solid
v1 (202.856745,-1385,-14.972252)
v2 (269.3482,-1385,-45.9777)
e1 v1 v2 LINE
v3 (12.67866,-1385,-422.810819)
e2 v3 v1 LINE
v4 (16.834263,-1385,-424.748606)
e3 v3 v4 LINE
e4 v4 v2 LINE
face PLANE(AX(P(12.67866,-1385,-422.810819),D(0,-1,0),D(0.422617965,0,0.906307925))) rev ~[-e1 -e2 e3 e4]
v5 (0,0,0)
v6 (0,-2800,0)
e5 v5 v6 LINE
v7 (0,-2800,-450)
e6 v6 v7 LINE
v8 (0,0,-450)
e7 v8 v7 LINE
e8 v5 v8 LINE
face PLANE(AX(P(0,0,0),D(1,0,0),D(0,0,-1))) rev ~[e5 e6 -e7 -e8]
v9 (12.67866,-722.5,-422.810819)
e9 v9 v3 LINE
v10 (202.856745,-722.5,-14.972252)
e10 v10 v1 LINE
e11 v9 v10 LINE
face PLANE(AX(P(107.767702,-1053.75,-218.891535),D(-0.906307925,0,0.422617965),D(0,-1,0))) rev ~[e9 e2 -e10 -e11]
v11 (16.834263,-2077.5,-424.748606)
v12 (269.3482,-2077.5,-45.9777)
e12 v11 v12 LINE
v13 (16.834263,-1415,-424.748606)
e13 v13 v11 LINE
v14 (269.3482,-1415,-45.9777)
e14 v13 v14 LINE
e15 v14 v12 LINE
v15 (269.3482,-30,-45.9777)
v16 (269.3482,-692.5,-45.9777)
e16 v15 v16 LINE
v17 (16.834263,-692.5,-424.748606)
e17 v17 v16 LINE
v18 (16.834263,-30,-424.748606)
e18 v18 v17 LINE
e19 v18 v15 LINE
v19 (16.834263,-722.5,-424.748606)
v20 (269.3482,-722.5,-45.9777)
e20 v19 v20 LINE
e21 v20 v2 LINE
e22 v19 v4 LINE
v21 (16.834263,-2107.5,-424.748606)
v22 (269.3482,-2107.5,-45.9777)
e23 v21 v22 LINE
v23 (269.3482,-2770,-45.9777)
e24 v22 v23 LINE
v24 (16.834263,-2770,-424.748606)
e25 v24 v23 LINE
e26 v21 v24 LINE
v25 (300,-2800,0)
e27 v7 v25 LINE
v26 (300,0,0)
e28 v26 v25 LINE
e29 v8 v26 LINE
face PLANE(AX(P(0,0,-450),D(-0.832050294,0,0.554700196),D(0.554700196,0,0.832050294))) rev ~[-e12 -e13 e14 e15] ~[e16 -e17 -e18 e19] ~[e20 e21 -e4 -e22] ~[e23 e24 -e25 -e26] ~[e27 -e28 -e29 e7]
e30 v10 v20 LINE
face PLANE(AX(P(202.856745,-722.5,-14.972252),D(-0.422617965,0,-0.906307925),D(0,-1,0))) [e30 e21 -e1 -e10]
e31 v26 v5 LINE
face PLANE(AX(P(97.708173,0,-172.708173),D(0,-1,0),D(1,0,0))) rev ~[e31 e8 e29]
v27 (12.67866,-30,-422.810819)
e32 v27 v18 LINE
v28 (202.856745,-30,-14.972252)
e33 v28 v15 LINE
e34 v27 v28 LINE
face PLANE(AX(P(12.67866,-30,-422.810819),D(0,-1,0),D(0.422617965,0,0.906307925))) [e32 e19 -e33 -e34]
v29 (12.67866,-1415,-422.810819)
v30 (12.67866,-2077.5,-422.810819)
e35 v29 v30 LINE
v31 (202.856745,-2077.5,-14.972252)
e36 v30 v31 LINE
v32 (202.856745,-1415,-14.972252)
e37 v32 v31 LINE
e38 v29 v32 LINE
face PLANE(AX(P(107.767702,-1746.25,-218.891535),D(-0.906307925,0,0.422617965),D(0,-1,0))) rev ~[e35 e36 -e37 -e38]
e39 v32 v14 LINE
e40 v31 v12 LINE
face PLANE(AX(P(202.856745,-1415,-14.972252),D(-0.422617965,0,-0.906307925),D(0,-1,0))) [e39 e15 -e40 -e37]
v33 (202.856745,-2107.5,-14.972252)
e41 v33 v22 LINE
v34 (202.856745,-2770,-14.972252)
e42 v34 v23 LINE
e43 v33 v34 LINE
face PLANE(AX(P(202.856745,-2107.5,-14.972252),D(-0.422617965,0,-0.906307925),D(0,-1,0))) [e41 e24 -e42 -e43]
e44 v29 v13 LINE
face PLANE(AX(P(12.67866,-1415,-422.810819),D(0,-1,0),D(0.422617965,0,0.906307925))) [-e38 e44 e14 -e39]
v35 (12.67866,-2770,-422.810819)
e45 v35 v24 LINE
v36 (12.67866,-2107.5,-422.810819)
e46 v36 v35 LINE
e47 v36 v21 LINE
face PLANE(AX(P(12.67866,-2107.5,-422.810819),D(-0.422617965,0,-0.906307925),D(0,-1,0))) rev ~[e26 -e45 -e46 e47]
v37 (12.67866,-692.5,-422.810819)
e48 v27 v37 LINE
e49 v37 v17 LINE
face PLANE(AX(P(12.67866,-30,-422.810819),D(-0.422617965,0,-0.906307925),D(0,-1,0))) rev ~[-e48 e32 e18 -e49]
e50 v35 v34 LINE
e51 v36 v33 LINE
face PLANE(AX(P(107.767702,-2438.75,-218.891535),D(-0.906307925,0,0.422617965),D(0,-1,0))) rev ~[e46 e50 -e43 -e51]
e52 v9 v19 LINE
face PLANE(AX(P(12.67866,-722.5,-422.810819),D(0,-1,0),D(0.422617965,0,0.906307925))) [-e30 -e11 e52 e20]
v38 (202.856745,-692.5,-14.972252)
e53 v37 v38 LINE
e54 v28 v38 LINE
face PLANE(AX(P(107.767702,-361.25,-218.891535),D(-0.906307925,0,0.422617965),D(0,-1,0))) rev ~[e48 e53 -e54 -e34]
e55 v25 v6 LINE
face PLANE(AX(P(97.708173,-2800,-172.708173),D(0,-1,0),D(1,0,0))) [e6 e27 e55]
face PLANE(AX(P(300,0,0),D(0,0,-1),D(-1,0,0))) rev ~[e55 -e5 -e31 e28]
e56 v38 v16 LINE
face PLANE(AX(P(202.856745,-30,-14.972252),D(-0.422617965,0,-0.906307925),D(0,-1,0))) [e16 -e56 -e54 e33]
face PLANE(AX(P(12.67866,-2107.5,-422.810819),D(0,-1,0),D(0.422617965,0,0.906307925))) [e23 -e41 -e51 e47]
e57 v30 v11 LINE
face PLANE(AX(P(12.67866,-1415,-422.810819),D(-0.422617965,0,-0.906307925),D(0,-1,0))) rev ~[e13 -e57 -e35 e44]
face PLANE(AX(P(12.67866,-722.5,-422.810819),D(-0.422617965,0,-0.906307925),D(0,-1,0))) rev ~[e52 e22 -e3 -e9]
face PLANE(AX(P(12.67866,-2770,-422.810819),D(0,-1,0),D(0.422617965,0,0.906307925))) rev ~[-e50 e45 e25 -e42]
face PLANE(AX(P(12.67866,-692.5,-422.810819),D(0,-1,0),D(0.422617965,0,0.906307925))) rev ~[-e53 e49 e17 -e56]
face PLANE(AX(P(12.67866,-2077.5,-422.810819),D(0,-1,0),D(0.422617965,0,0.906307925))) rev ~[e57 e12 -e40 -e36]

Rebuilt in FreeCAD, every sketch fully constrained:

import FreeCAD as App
import Part
import Sketcher
from FreeCAD import Vector

doc = App.newDocument("Part")
body = doc.addObject("PartDesign::Body", "Body")

sketch1 = body.newObject("Sketcher::SketchObject", "Sketch")
sketch1.AttachmentSupport = (doc.getObject("XZ_Plane"), [""])
sketch1.MapMode = "FlatFace"
sketch1.addGeometry([
    Part.LineSegment(Vector(300, 0, 0), Vector(0, 0, 0)),
    Part.LineSegment(Vector(0, 0, 0), Vector(0, -450, 0)),
    Part.LineSegment(Vector(0, -450, 0), Vector(300, 0, 0)),
], False)
sketch1.addConstraint([
    Sketcher.Constraint("Coincident", 0, 2, 1, 1),
    Sketcher.Constraint("Coincident", 1, 2, 2, 1),
    Sketcher.Constraint("Coincident", 2, 2, 0, 1),
    Sketcher.Constraint("Horizontal", 0),
    Sketcher.Constraint("Vertical", 1),
    Sketcher.Constraint("Coincident", 0, 2, -1, 1),
    Sketcher.Constraint("DistanceX", 0, 2, 0, 1, 300.0),
    Sketcher.Constraint("DistanceY", 1, 2, 1, 1, 450.0),
])
pad1 = body.newObject("PartDesign::Pad", "Pad")
pad1.Profile = sketch1
pad1.Length = 2800

sketch2 = body.newObject("Sketcher::SketchObject", "Sketch001")
sketch2.Placement = App.Placement(Vector(172.36, 0, -80.372788), App.Rotation(Vector(0, -1, 0), Vector(0.422617965, 0, 0.906307925), Vector(-0.906307925, 0, 0.422617965), "ZXY"))
sketch2.addGeometry([
    Part.LineSegment(Vector(2107.5, 72.161496, 0), Vector(2107.5, -377.838504, 0)),
    Part.LineSegment(Vector(2107.5, -377.838504, 0), Vector(2770, -377.838504, 0)),
    Part.LineSegment(Vector(2770, -377.838504, 0), Vector(2770, 72.161496, 0)),
    Part.LineSegment(Vector(2770, 72.161496, 0), Vector(2107.5, 72.161496, 0)),
    Part.LineSegment(Vector(1415, 72.161496, 0), Vector(1415, -377.838504, 0)),
    Part.LineSegment(Vector(1415, -377.838504, 0), Vector(2077.5, -377.838504, 0)),
    Part.LineSegment(Vector(2077.5, -377.838504, 0), Vector(2077.5, 72.161496, 0)),
    Part.LineSegment(Vector(2077.5, 72.161496, 0), Vector(1415, 72.161496, 0)),
    Part.LineSegment(Vector(722.5, 72.161496, 0), Vector(722.5, -377.838504, 0)),
    Part.LineSegment(Vector(722.5, -377.838504, 0), Vector(1385, -377.838504, 0)),
    Part.LineSegment(Vector(1385, -377.838504, 0), Vector(1385, 72.161496, 0)),
    Part.LineSegment(Vector(1385, 72.161496, 0), Vector(722.5, 72.161496, 0)),
    Part.LineSegment(Vector(30, 72.161496, 0), Vector(30, -377.838504, 0)),
    Part.LineSegment(Vector(30, -377.838504, 0), Vector(692.5, -377.838504, 0)),
    Part.LineSegment(Vector(692.5, -377.838504, 0), Vector(692.5, 72.161496, 0)),
    Part.LineSegment(Vector(692.5, 72.161496, 0), Vector(30, 72.161496, 0)),
], False)
sketch2.addConstraint([
    Sketcher.Constraint("Coincident", 0, 2, 1, 1),
    Sketcher.Constraint("Coincident", 1, 2, 2, 1),
    Sketcher.Constraint("Coincident", 2, 2, 3, 1),
    Sketcher.Constraint("Coincident", 3, 2, 0, 1),
    Sketcher.Constraint("Coincident", 4, 2, 5, 1),
    Sketcher.Constraint("Coincident", 5, 2, 6, 1),
    Sketcher.Constraint("Coincident", 6, 2, 7, 1),
    Sketcher.Constraint("Coincident", 7, 2, 4, 1),
    Sketcher.Constraint("Coincident", 8, 2, 9, 1),
    Sketcher.Constraint("Coincident", 9, 2, 10, 1),
    Sketcher.Constraint("Coincident", 10, 2, 11, 1),
    Sketcher.Constraint("Coincident", 11, 2, 8, 1),
    Sketcher.Constraint("Coincident", 12, 2, 13, 1),
    Sketcher.Constraint("Coincident", 13, 2, 14, 1),
    Sketcher.Constraint("Coincident", 14, 2, 15, 1),
    Sketcher.Constraint("Coincident", 15, 2, 12, 1),
    Sketcher.Constraint("Vertical", 0),
    Sketcher.Constraint("Horizontal", 1),
    Sketcher.Constraint("Vertical", 2),
    Sketcher.Constraint("Horizontal", 3),
    Sketcher.Constraint("Vertical", 4),
    Sketcher.Constraint("Horizontal", 5),
    Sketcher.Constraint("Vertical", 6),
    Sketcher.Constraint("Horizontal", 7),
    Sketcher.Constraint("Vertical", 8),
    Sketcher.Constraint("Horizontal", 9),
    Sketcher.Constraint("Vertical", 10),
    Sketcher.Constraint("Horizontal", 11),
    Sketcher.Constraint("Vertical", 12),
    Sketcher.Constraint("Horizontal", 13),
    Sketcher.Constraint("Vertical", 14),
    Sketcher.Constraint("Horizontal", 15),
    Sketcher.Constraint("Horizontal", 1, 2, 4, 2),
    Sketcher.Constraint("Horizontal", 3, 2, 6, 2),
    Sketcher.Constraint("Horizontal", 5, 2, 8, 2),
    Sketcher.Constraint("Horizontal", 7, 2, 10, 2),
    Sketcher.Constraint("Horizontal", 9, 2, 12, 2),
    Sketcher.Constraint("Horizontal", 11, 2, 14, 2),
    Sketcher.Constraint("Equal", 3, 5),
    Sketcher.Constraint("Equal", 7, 9),
    Sketcher.Constraint("Equal", 11, 13),
    Sketcher.Constraint("DistanceY", 0, 2, 0, 1, 450.0),
    Sketcher.Constraint("DistanceX", 1, 1, 1, 2, 662.5),
    Sketcher.Constraint("DistanceX", -1, 1, 1, 2, 2770.0),
    Sketcher.Constraint("DistanceX", -1, 1, 4, 2, 1415.0),
    Sketcher.Constraint("DistanceX", -1, 1, 9, 2, 1385.0),
    Sketcher.Constraint("DistanceX", -1, 1, 12, 2, 30.0),
    Sketcher.Constraint("DistanceY", 0, 2, -1, 1, 377.838504),
])
pocket1 = body.newObject("PartDesign::Pocket", "Pocket")
pocket1.Profile = sketch2
pocket1.Length = 247

doc.recompute()
